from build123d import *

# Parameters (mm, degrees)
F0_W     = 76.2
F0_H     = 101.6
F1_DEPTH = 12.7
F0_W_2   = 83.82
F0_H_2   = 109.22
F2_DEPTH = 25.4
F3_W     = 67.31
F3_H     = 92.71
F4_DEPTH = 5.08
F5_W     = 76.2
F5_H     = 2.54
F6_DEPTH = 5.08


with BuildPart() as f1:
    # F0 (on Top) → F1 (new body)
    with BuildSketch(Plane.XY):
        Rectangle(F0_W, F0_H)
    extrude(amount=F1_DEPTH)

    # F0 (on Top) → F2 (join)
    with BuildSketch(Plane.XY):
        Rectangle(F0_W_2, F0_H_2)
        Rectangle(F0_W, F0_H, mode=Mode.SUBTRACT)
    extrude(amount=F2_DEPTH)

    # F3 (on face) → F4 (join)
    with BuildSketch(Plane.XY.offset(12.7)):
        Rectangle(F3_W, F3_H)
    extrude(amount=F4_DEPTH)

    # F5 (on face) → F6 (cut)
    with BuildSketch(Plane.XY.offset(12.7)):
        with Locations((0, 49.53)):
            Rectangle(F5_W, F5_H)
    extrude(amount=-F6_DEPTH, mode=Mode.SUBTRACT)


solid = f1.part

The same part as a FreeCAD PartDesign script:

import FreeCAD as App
import Part
import Sketcher
Q = App.Units.Quantity


def add_polygon(sketch, points):
    """Adds a closed chain of lines whose ends are joined by coincident constraints."""
    first, n = sketch.GeometryCount, len(points)
    for a, b in zip(points, points[1:] + points[:1]):
        sketch.addGeometry(Part.LineSegment(App.Vector(*a, 0), App.Vector(*b, 0)), False)
    for i in range(n):
        sketch.addConstraint(Sketcher.Constraint("Coincident", first + i, 2, first + (i + 1) % n, 1))

doc = App.newDocument("Part")
params = doc.addObject("Spreadsheet::Sheet", "Params")
for row, (alias, value) in enumerate([
    ("sketch1_width", "3 in"),
    ("sketch1_height", "4 in"),
    ("pad1_length", "0.5 in"),
    ("sketch2_width", "3 in"),
    ("sketch2_height", "4 in"),
    ("sketch2_width2", "3.3 in"),
    ("sketch2_height2", "4.3 in"),
    ("pad2_length", "1 in"),
    ("sketch3_width", "2.65 in"),
    ("sketch3_height", "3.65 in"),
    ("pad3_length", "0.2 in"),
    ("sketch4_width", "3 in"),
    ("sketch4_height", "0.1 in"),
    ("pocket1_length", "0.2 in"),
], start=1):
    params.set(f"A{row}", alias)
    params.set(f"B{row}", "=" + value)
    params.setAlias(f"B{row}", alias)

body = doc.addObject("PartDesign::Body", "Body")

sketch1 = doc.addObject("Sketcher::SketchObject", "Sketch")
body.addObject(sketch1)
sketch1.AttachmentSupport = (doc.XY_Plane, [""])
sketch1.MapMode = "FlatFace"
add_polygon(sketch1, [(-38, 51), (-38, -51), (38, -51), (38, 51)])
sketch1.addConstraint(Sketcher.Constraint("Vertical", 0))
sketch1.addConstraint(Sketcher.Constraint("Horizontal", 1))
sketch1.addConstraint(Sketcher.Constraint("Vertical", 2))
sketch1.addConstraint(Sketcher.Constraint("Horizontal", 3))
sketch1.addConstraint(Sketcher.Constraint("Symmetric", 0, 2, 2, 2, -1, 1))
sketch1.addConstraint(Sketcher.Constraint("DistanceX", 1, 1, 1, 2, Q("3 in")))
sketch1.addConstraint(Sketcher.Constraint("DistanceY", 0, 2, 0, 1, Q("4 in")))
sketch1.setExpression("Constraints[9]", "Params.sketch1_width")
sketch1.setExpression("Constraints[10]", "Params.sketch1_height")
pad1 = doc.addObject("PartDesign::Pad", "Pad")
body.addObject(pad1)
pad1.Profile = sketch1
pad1.setExpression("Length", "Params.pad1_length")

sketch2 = doc.addObject("Sketcher::SketchObject", "Sketch001")
body.addObject(sketch2)
sketch2.AttachmentSupport = (doc.XY_Plane, [""])
sketch2.MapMode = "FlatFace"
add_polygon(sketch2, [(-42, 55), (-42, -55), (42, -55), (42, 55)])
add_polygon(sketch2, [(38, -51), (-38, -51), (-38, 51), (38, 51)])
sketch2.addConstraint(Sketcher.Constraint("Vertical", 0))
sketch2.addConstraint(Sketcher.Constraint("Horizontal", 1))
sketch2.addConstraint(Sketcher.Constraint("Vertical", 2))
sketch2.addConstraint(Sketcher.Constraint("Horizontal", 3))
sketch2.addConstraint(Sketcher.Constraint("Horizontal", 4))
sketch2.addConstraint(Sketcher.Constraint("Vertical", 5))
sketch2.addConstraint(Sketcher.Constraint("Horizontal", 6))
sketch2.addConstraint(Sketcher.Constraint("Vertical", 7))
sketch2.addConstraint(Sketcher.Constraint("Symmetric", 0, 2, 2, 2, -1, 1))
sketch2.addConstraint(Sketcher.Constraint("Symmetric", 4, 2, 6, 2, -1, 1))
sketch2.addConstraint(Sketcher.Constraint("DistanceX", 4, 2, 4, 1, Q("3 in")))
sketch2.addConstraint(Sketcher.Constraint("DistanceY", 5, 1, 5, 2, Q("4 in")))
sketch2.addConstraint(Sketcher.Constraint("DistanceX", 1, 1, 1, 2, Q("3.3 in")))
sketch2.addConstraint(Sketcher.Constraint("DistanceY", 0, 2, 0, 1, Q("4.3 in")))
sketch2.setExpression("Constraints[18]", "Params.sketch2_width")
sketch2.setExpression("Constraints[19]", "Params.sketch2_height")
sketch2.setExpression("Constraints[20]", "Params.sketch2_width2")
sketch2.setExpression("Constraints[21]", "Params.sketch2_height2")
pad2 = doc.addObject("PartDesign::Pad", "Pad001")
body.addObject(pad2)
pad2.Profile = sketch2
pad2.setExpression("Length", "Params.pad2_length")

sketch3 = doc.addObject("Sketcher::SketchObject", "Sketch002")
body.addObject(sketch3)
sketch3.AttachmentSupport = (doc.XY_Plane, [""])
sketch3.MapMode = "FlatFace"
sketch3.AttachmentOffset = App.Placement(App.Vector(0, 0, 0.5 * 25.4), App.Rotation())
add_polygon(sketch3, [(-34, 46), (-34, -46), (34, -46), (34, 46)])
sketch3.addConstraint(Sketcher.Constraint("Vertical", 0))
sketch3.addConstraint(Sketcher.Constraint("Horizontal", 1))
sketch3.addConstraint(Sketcher.Constraint("Vertical", 2))
sketch3.addConstraint(Sketcher.Constraint("Horizontal", 3))
sketch3.addConstraint(Sketcher.Constraint("Symmetric", 0, 2, 2, 2, -1, 1))
sketch3.addConstraint(Sketcher.Constraint("DistanceX", 1, 1, 1, 2, Q("2.65 in")))
sketch3.addConstraint(Sketcher.Constraint("DistanceY", 0, 2, 0, 1, Q("3.65 in")))
sketch3.setExpression("Constraints[9]", "Params.sketch3_width")
sketch3.setExpression("Constraints[10]", "Params.sketch3_height")
pad3 = doc.addObject("PartDesign::Pad", "Pad002")
body.addObject(pad3)
pad3.Profile = sketch3
pad3.setExpression("Length", "Params.pad3_length")

sketch4 = doc.addObject("Sketcher::SketchObject", "Sketch003")
body.addObject(sketch4)
sketch4.AttachmentSupport = (doc.XY_Plane, [""])
sketch4.MapMode = "FlatFace"
sketch4.AttachmentOffset = App.Placement(App.Vector(0, 0, 0.5 * 25.4), App.Rotation())
add_polygon(sketch4, [(-38.1, 50.8), (-38.1, 48.3), (38.1, 48.3), (38.1, 50.8)])
sketch4.addConstraint(Sketcher.Constraint("Vertical", 0))
sketch4.addConstraint(Sketcher.Constraint("Horizontal", 1))
sketch4.addConstraint(Sketcher.Constraint("Vertical", 2))
sketch4.addConstraint(Sketcher.Constraint("Horizontal", 3))
sketch4.addConstraint(Sketcher.Constraint("DistanceX", 1, 1, 1, 2, Q("3 in")))
sketch4.addConstraint(Sketcher.Constraint("DistanceY", 0, 2, 0, 1, Q("0.1 in")))
sketch4.addConstraint(Sketcher.Constraint("DistanceY", -1, 1, 2, 2, Q("2 in")))
sketch4.addConstraint(Sketcher.Constraint("DistanceX", 0, 2, -1, 1, Q("1.5 in")))
sketch4.setExpression("Constraints[8]", "Params.sketch4_width")
sketch4.setExpression("Constraints[9]", "Params.sketch4_height")
pocket1 = doc.addObject("PartDesign::Pocket", "Pocket")
body.addObject(pocket1)
pocket1.Profile = sketch4
pocket1.setExpression("Length", "Params.pocket1_length")

doc.recompute()
